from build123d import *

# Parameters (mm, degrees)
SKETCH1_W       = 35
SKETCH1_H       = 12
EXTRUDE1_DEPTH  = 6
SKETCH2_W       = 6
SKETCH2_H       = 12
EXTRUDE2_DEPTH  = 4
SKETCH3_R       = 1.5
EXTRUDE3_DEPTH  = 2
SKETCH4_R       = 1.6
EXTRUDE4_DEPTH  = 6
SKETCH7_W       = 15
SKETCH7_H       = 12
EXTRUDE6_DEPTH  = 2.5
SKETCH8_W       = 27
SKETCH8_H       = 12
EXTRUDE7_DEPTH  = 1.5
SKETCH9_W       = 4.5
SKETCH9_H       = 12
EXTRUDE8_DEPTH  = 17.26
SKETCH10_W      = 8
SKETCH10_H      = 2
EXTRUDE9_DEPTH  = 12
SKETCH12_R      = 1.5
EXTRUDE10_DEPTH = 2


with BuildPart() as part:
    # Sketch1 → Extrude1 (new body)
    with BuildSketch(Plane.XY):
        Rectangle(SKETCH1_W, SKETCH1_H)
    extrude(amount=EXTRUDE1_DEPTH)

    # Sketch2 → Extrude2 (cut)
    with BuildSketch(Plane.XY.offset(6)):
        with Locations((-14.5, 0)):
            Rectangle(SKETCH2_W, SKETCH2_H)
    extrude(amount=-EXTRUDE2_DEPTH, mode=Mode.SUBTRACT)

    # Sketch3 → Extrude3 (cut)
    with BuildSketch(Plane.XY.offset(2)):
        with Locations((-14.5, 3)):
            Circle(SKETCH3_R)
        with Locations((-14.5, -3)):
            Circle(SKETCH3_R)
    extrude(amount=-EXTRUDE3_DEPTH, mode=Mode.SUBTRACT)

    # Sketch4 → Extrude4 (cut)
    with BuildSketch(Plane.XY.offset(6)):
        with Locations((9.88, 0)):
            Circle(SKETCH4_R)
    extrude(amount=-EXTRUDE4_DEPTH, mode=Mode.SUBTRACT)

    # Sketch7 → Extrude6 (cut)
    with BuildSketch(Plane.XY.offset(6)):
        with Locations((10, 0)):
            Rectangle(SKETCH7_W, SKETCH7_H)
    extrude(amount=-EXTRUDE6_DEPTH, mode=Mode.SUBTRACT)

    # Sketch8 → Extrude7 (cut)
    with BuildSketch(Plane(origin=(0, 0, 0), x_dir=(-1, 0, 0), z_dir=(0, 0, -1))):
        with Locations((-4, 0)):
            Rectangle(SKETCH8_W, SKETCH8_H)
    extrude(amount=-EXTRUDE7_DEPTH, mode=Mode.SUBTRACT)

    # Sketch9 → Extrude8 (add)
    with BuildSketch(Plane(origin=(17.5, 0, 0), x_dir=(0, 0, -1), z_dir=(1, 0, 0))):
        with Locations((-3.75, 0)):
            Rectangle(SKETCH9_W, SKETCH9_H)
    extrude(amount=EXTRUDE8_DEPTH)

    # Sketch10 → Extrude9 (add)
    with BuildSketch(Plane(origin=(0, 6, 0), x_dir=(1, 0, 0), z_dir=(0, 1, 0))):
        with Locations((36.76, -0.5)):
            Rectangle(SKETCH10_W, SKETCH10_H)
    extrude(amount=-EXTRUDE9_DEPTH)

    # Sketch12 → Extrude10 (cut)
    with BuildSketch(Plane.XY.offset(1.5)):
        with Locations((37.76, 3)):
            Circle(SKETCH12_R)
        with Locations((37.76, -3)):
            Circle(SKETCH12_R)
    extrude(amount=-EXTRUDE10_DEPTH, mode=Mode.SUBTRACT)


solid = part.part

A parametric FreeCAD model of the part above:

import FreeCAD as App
import Part
import Sketcher
from FreeCAD import Vector
Q = App.Units.Quantity


def add_polygon(sketch, points):
    """Adds a closed chain of lines whose ends are joined by coincident constraints."""
    first, n = sketch.GeometryCount, len(points)
    for a, b in zip(points, points[1:] + points[:1]):
        sketch.addGeometry(Part.LineSegment(App.Vector(*a, 0), App.Vector(*b, 0)), False)
    for i in range(n):
        sketch.addConstraint(Sketcher.Constraint("Coincident", first + i, 2, first + (i + 1) % n, 1))

doc = App.newDocument("Part")
body = doc.addObject("PartDesign::Body", "Body")

# Sketch on XY plane
sketch1 = body.newObject("Sketcher::SketchObject", "Sketch")
sketch1.AttachmentSupport = (doc.getObject("XY_Plane"), [""])
sketch1.MapMode = "FlatFace"
add_polygon(sketch1, [(-18, 6), (-18, -6), (18, -6), (18, 6)])  # lines 0-3
sketch1.addConstraint(Sketcher.Constraint("Vertical", 0))
sketch1.addConstraint(Sketcher.Constraint("Horizontal", 1))
sketch1.addConstraint(Sketcher.Constraint("Vertical", 2))
sketch1.addConstraint(Sketcher.Constraint("Horizontal", 3))
sketch1.addConstraint(Sketcher.Constraint("Symmetric", 0, 2, 2, 2, -1, 1))
sketch1.addConstraint(Sketcher.Constraint("DistanceX", 1, 1, 1, 2, Q("35 mm")))
sketch1.addConstraint(Sketcher.Constraint("DistanceY", 0, 2, 0, 1, Q("12 mm")))
pad1 = body.newObject("PartDesign::Pad", "Pad")
pad1.Profile = sketch1
pad1.Length = 6

# Sketch on XY plane
sketch2 = body.newObject("Sketcher::SketchObject", "Sketch001")
sketch2.AttachmentSupport = (doc.getObject("XY_Plane"), [""])
sketch2.MapMode = "FlatFace"
sketch2.AttachmentOffset = App.Placement(Vector(0, 0, 6), App.Rotation())
add_polygon(sketch2, [(-18, 6), (-18, -6), (-12, -6), (-12, 6)])  # lines 0-3
sketch2.addConstraint(Sketcher.Constraint("Vertical", 0))
sketch2.addConstraint(Sketcher.Constraint("Horizontal", 1))
sketch2.addConstraint(Sketcher.Constraint("Vertical", 2))
sketch2.addConstraint(Sketcher.Constraint("Horizontal", 3))
sketch2.addConstraint(Sketcher.Constraint("DistanceX", 1, 1, 1, 2, Q("6 mm")))
sketch2.addConstraint(Sketcher.Constraint("DistanceY", 0, 2, 0, 1, Q("12 mm")))
sketch2.addConstraint(Sketcher.Constraint("DistanceY", 0, 2, -1, 1, Q("6 mm")))
sketch2.addConstraint(Sketcher.Constraint("DistanceX", 0, 2, -1, 1, Q("17.5 mm")))
pocket1 = body.newObject("PartDesign::Pocket", "Pocket")
pocket1.Profile = sketch2
pocket1.Length = 4

# Sketch on XY plane
sketch3 = body.newObject("Sketcher::SketchObject", "Sketch002")
sketch3.AttachmentSupport = (doc.getObject("XY_Plane"), [""])
sketch3.MapMode = "FlatFace"
sketch3.AttachmentOffset = App.Placement(Vector(0, 0, 2), App.Rotation())
sketch3.addGeometry(Part.Circle(Vector(-14.5, 3, 0), Vector(0, 0, 1), 1.5), False)
sketch3.addGeometry(Part.Circle(Vector(-14.5, -3, 0), Vector(0, 0, 1), 1.5), False)
sketch3.addConstraint(Sketcher.Constraint("Equal", 0, 1))
sketch3.addConstraint(Sketcher.Constraint("Symmetric", 0, 3, 1, 3, -1))
sketch3.addConstraint(Sketcher.Constraint("Diameter", 0, Q("3 mm")))
sketch3.addConstraint(Sketcher.Constraint("DistanceY", -1, 1, 0, 3, Q("3 mm")))
sketch3.addConstraint(Sketcher.Constraint("DistanceX", 0, 3, -1, 1, Q("14.5 mm")))
pocket2 = body.newObject("PartDesign::Pocket", "Pocket001")
pocket2.Profile = sketch3
pocket2.Length = 2

# Sketch on XY plane
sketch4 = body.newObject("Sketcher::SketchObject", "Sketch003")
sketch4.AttachmentSupport = (doc.getObject("XY_Plane"), [""])
sketch4.MapMode = "FlatFace"
sketch4.AttachmentOffset = App.Placement(Vector(0, 0, 6), App.Rotation())
sketch4.addGeometry(Part.Circle(Vector(9.9, 0, 0), Vector(0, 0, 1), 1.6), False)
sketch4.addConstraint(Sketcher.Constraint("PointOnObject", 0, 3, -1))
sketch4.addConstraint(Sketcher.Constraint("Diameter", 0, Q("3.2 mm")))
sketch4.addConstraint(Sketcher.Constraint("DistanceX", -1, 1, 0, 3, Q("9.88 mm")))
pocket3 = body.newObject("PartDesign::Pocket", "Pocket002")
pocket3.Profile = sketch4
pocket3.Length = 6

# Sketch on XY plane
sketch5 = body.newObject("Sketcher::SketchObject", "Sketch004")
sketch5.AttachmentSupport = (doc.getObject("XY_Plane"), [""])
sketch5.MapMode = "FlatFace"
sketch5.AttachmentOffset = App.Placement(Vector(0, 0, 6), App.Rotation())
add_polygon(sketch5, [(2, 6), (2, -6), (18, -6), (18, 6)])  # lines 0-3
sketch5.addConstraint(Sketcher.Constraint("Vertical", 0))
sketch5.addConstraint(Sketcher.Constraint("Horizontal", 1))
sketch5.addConstraint(Sketcher.Constraint("Vertical", 2))
sketch5.addConstraint(Sketcher.Constraint("Horizontal", 3))
sketch5.addConstraint(Sketcher.Constraint("DistanceX", 1, 1, 1, 2, Q("15 mm")))
sketch5.addConstraint(Sketcher.Constraint("DistanceY", 0, 2, 0, 1, Q("12 mm")))
sketch5.addConstraint(Sketcher.Constraint("DistanceY", 0, 2, -1, 1, Q("6 mm")))
sketch5.addConstraint(Sketcher.Constraint("DistanceX", -1, 1, 0, 2, Q("2.5 mm")))
pocket4 = body.newObject("PartDesign::Pocket", "Pocket003")
pocket4.Profile = sketch5
pocket4.Length = 2.5

# Sketch on XY plane
sketch6 = body.newObject("Sketcher::SketchObject", "Sketch005")
sketch6.AttachmentSupport = (doc.getObject("XY_Plane"), [""])
sketch6.MapMode = "FlatFace"
add_polygon(sketch6, [(18, 6), (18, -6), (-10, -6), (-10, 6)])  # lines 0-3
sketch6.addConstraint(Sketcher.Constraint("Vertical", 0))
sketch6.addConstraint(Sketcher.Constraint("Horizontal", 1))
sketch6.addConstraint(Sketcher.Constraint("Vertical", 2))
sketch6.addConstraint(Sketcher.Constraint("Horizontal", 3))
sketch6.addConstraint(Sketcher.Constraint("DistanceX", 1, 2, 1, 1, Q("27 mm")))
sketch6.addConstraint(Sketcher.Constraint("DistanceY", 0, 2, 0, 1, Q("12 mm")))
sketch6.addConstraint(Sketcher.Constraint("DistanceY", 0, 2, -1, 1, Q("6 mm")))
sketch6.addConstraint(Sketcher.Constraint("DistanceX", -1, 1, 0, 2, Q("17.5 mm")))
pocket5 = body.newObject("PartDesign::Pocket", "Pocket004")
pocket5.Profile = sketch6
pocket5.Length = 1.5
pocket5.Reversed = True

# Sketch on YZ plane
sketch7 = body.newObject("Sketcher::SketchObject", "Sketch006")
sketch7.AttachmentSupport = (doc.getObject("YZ_Plane"), [""])
sketch7.MapMode = "FlatFace"
sketch7.AttachmentOffset = App.Placement(Vector(0, 0, 17.5), App.Rotation())
add_polygon(sketch7, [(6, 6), (-6, 6), (-6, 1.5), (6, 1.5)])  # lines 0-3
sketch7.addConstraint(Sketcher.Constraint("Horizontal", 0))
sketch7.addConstraint(Sketcher.Constraint("Vertical", 1))
sketch7.addConstraint(Sketcher.Constraint("Horizontal", 2))
sketch7.addConstraint(Sketcher.Constraint("Vertical", 3))
sketch7.addConstraint(Sketcher.Constraint("DistanceX", 0, 2, 0, 1, Q("12 mm")))
sketch7.addConstraint(Sketcher.Constraint("DistanceY", 1, 2, 1, 1, Q("4.5 mm")))
sketch7.addConstraint(Sketcher.Constraint("DistanceX", 0, 2, -1, 1, Q("6 mm")))
sketch7.addConstraint(Sketcher.Constraint("DistanceY", -1, 1, 0, 2, Q("6 mm")))
pad2 = body.newObject("PartDesign::Pad", "Pad001")
pad2.Profile = sketch7
pad2.Length = 17.26

# Sketch on XZ plane
sketch8 = body.newObject("Sketcher::SketchObject", "Sketch007")
sketch8.AttachmentSupport = (doc.getObject("XZ_Plane"), [""])
sketch8.MapMode = "FlatFace"
sketch8.AttachmentOffset = App.Placement(Vector(0, 0, -6), App.Rotation())
add_polygon(sketch8, [(32.8, -0.5), (32.8, 1.5), (40.8, 1.5), (40.8, -0.5)])  # lines 0-3
sketch8.addConstraint(Sketcher.Constraint("Vertical", 0))
sketch8.addConstraint(Sketcher.Constraint("Horizontal", 1))
sketch8.addConstraint(Sketcher.Constraint("Vertical", 2))
sketch8.addConstraint(Sketcher.Constraint("Horizontal", 3))
sketch8.addConstraint(Sketcher.Constraint("DistanceX", 1, 1, 1, 2, Q("8 mm")))
sketch8.addConstraint(Sketcher.Constraint("DistanceY", 0, 1, 0, 2, Q("2 mm")))
sketch8.addConstraint(Sketcher.Constraint("DistanceY", -1, 1, 0, 2, Q("1.5 mm")))
sketch8.addConstraint(Sketcher.Constraint("DistanceX", -1, 1, 0, 2, Q("32.76 mm")))
pad3 = body.newObject("PartDesign::Pad", "Pad002")
pad3.Profile = sketch8
pad3.Length = 12

# Sketch on XY plane
sketch9 = body.newObject("Sketcher::SketchObject", "Sketch008")
sketch9.AttachmentSupport = (doc.getObject("XY_Plane"), [""])
sketch9.MapMode = "FlatFace"
sketch9.AttachmentOffset = App.Placement(Vector(0, 0, 1.5), App.Rotation())
sketch9.addGeometry(Part.Circle(Vector(37.8, 3, 0), Vector(0, 0, 1), 1.5), False)
sketch9.addGeometry(Part.Circle(Vector(37.8, -3, 0), Vector(0, 0, 1), 1.5), False)
sketch9.addConstraint(Sketcher.Constraint("Equal", 0, 1))
sketch9.addConstraint(Sketcher.Constraint("Symmetric", 0, 3, 1, 3, -1))
sketch9.addConstraint(Sketcher.Constraint("Diameter", 0, Q("3 mm")))
sketch9.addConstraint(Sketcher.Constraint("DistanceY", -1, 1, 0, 3, Q("3 mm")))
sketch9.addConstraint(Sketcher.Constraint("DistanceX", -1, 1, 0, 3, Q("37.76 mm")))
pocket6 = body.newObject("PartDesign::Pocket", "Pocket005")
pocket6.Profile = sketch9
pocket6.Length = 2

doc.recompute()
